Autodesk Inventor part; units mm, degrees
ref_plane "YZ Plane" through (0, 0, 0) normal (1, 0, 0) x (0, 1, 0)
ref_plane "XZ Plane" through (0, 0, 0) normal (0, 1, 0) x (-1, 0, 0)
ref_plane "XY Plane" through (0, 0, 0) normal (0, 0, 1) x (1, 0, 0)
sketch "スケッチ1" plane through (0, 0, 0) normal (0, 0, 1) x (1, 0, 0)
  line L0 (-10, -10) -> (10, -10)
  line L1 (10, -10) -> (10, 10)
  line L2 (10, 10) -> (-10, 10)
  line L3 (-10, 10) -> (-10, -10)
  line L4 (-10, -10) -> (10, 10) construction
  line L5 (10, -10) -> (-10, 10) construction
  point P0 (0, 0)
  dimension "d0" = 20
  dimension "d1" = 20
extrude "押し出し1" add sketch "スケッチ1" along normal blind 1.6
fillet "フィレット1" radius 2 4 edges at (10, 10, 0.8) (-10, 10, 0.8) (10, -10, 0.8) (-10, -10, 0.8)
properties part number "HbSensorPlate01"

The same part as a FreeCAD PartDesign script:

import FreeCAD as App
import Part
import Sketcher
from FreeCAD import Vector


def edges_at(feature, points):
    """Names of the edges that pass closest to the given points."""
    edges = feature.Shape.Edges
    near = lambda p: min(range(len(edges)), key=lambda i: edges[i].distToShape(Part.Vertex(*p))[0])
    return sorted({f"Edge{near(p) + 1}" for p in points})

doc = App.newDocument("Part")
body = doc.addObject("PartDesign::Body", "Body")

# Sketch on XY plane
sketch1 = doc.addObject("Sketcher::SketchObject", "Sketch")
body.addObject(sketch1)
sketch1.AttachmentSupport = (doc.XY_Plane, [""])
sketch1.MapMode = "FlatFace"
sketch1.addGeometry(Part.LineSegment(Vector(-10, 10, 0), Vector(-10, -10, 0)), False)
sketch1.addGeometry(Part.LineSegment(Vector(-10, -10, 0), Vector(10, -10, 0)), False)
sketch1.addGeometry(Part.LineSegment(Vector(10, -10, 0), Vector(10, 10, 0)), False)
sketch1.addGeometry(Part.LineSegment(Vector(10, 10, 0), Vector(-10, 10, 0)), False)
sketch1.addConstraint(Sketcher.Constraint("Coincident", 0, 2, 1, 1))
sketch1.addConstraint(Sketcher.Constraint("Coincident", 1, 2, 2, 1))
sketch1.addConstraint(Sketcher.Constraint("Coincident", 2, 2, 3, 1))
sketch1.addConstraint(Sketcher.Constraint("Coincident", 3, 2, 0, 1))
sketch1.addConstraint(Sketcher.Constraint("Vertical", 0))
sketch1.addConstraint(Sketcher.Constraint("Horizontal", 1))
sketch1.addConstraint(Sketcher.Constraint("Vertical", 2))
sketch1.addConstraint(Sketcher.Constraint("Horizontal", 3))
sketch1.addConstraint(Sketcher.Constraint("Symmetric", 0, 2, 2, 2, -1, 1))
sketch1.addConstraint(Sketcher.Constraint("Equal", 3, 0))
sketch1.addConstraint(Sketcher.Constraint("DistanceX", 1, 1, 1, 2, 20.0))
pad1 = doc.addObject("PartDesign::Pad", "Pad")
body.addObject(pad1)
pad1.Profile = sketch1
pad1.Length = 1.6
doc.recompute()

fillet = doc.addObject("PartDesign::Fillet", "Fillet")
body.addObject(fillet)
fillet.Base = (pad1, edges_at(pad1, [
    (10, 10, 0.8),
    (-10, 10, 0.8),
    (10, -10, 0.8),
    (-10, -10, 0.8),
]))
fillet.Radius = 2

doc.recompute()
